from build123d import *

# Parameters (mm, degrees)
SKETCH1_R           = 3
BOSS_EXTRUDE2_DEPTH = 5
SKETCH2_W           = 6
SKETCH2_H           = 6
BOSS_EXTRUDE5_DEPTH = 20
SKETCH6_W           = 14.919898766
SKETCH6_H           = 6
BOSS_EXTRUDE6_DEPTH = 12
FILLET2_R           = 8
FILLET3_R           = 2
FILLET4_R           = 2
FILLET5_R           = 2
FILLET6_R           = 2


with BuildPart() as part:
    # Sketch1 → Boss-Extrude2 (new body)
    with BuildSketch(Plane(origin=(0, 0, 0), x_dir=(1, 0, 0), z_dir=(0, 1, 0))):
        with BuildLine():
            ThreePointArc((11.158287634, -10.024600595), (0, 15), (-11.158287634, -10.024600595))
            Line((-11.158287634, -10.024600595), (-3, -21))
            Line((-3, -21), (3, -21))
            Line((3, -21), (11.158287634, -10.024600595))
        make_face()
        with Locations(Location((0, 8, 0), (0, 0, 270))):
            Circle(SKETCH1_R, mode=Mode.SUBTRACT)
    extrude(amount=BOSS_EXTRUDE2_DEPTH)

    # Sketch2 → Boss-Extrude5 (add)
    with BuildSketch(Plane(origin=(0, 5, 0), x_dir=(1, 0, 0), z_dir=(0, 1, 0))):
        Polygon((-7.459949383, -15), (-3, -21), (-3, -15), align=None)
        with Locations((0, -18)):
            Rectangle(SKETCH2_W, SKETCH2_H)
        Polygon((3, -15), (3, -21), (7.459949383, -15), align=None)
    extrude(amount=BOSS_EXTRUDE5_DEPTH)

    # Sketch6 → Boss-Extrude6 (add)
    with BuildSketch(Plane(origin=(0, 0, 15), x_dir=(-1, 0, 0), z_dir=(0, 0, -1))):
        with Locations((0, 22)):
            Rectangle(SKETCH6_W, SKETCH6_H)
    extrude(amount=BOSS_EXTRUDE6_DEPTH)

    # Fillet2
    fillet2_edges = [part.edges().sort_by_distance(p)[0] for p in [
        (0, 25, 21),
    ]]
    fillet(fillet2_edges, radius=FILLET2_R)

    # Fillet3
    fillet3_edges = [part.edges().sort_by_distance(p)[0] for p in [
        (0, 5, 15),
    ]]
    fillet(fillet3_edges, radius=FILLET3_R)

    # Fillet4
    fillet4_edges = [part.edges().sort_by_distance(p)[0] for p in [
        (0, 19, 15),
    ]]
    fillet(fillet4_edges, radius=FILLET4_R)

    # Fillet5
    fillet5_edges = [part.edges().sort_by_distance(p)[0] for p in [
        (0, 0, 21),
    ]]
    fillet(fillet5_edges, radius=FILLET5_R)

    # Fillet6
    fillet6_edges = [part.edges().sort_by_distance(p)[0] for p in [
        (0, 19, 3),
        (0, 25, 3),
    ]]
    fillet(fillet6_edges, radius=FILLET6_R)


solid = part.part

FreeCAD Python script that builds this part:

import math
import FreeCAD as App
import Part
import Sketcher


def edges_at(feature, points):
    """Names of the edges that pass closest to the given points."""
    edges = feature.Shape.Edges
    near = lambda p: min(range(len(edges)), key=lambda i: edges[i].distToShape(Part.Vertex(*p))[0])
    return sorted({f"Edge{near(p) + 1}" for p in points})


def add_polygon(sketch, points):
    """Adds a closed chain of lines whose ends are joined by coincident constraints."""
    first, n = sketch.GeometryCount, len(points)
    for a, b in zip(points, points[1:] + points[:1]):
        sketch.addGeometry(Part.LineSegment(App.Vector(*a, 0), App.Vector(*b, 0)), False)
    for i in range(n):
        sketch.addConstraint(Sketcher.Constraint("Coincident", first + i, 2, first + (i + 1) % n, 1))

doc = App.newDocument("Part")
body = doc.addObject("PartDesign::Body", "Body")

# Sketch on XZ plane
sketch1 = body.newObject("Sketcher::SketchObject", "Sketch")
sketch1.AttachmentSupport = (doc.getObject("XZ_Plane"), [""])
sketch1.MapMode = "FlatFace"
sketch1.addGeometry([
    Part.ArcOfCircle(Part.Circle(App.Vector(0, 0, 0), App.Vector(0, 0, 1), 15), math.radians(138.06349), math.radians(401.93651)),  # 0
    Part.LineSegment(App.Vector(-11.158288, 10.024601, 0), App.Vector(-3, 21, 0)),  # 1
    Part.LineSegment(App.Vector(-3, 21, 0), App.Vector(3, 21, 0)),  # 2
    Part.LineSegment(App.Vector(3, 21, 0), App.Vector(11.158288, 10.024601, 0)),  # 3
    Part.Circle(App.Vector(0, -8, 0), App.Vector(0, 0, 1), 3),  # 4
], False)
sketch1.addConstraint([
    Sketcher.Constraint("Coincident", 0, 1, 1, 1),
    Sketcher.Constraint("Coincident", 1, 2, 2, 1),
    Sketcher.Constraint("Coincident", 2, 2, 3, 1),
    Sketcher.Constraint("Coincident", 3, 2, 0, 2),
    Sketcher.Constraint("Horizontal", 2),
    Sketcher.Constraint("Coincident", 0, 3, -1, 1),
    Sketcher.Constraint("PointOnObject", 4, 3, -2),
    Sketcher.Constraint("Horizontal", 0, 1, 3, 2),
    Sketcher.Constraint("Equal", 1, 3),
    Sketcher.Constraint("Diameter", 4, 6.0),
    Sketcher.Constraint("Radius", 0, 15.0),
    Sketcher.Constraint("DistanceX", 2, 1, 2, 2, 6.0),
    Sketcher.Constraint("DistanceY", 4, 3, -1, 1, 8.0),
    Sketcher.Constraint("DistanceY", -1, 1, 1, 2, 21.0),
    Sketcher.Constraint("DistanceY", -1, 1, 0, 1, 10.024601),
])
pad1 = body.newObject("PartDesign::Pad", "Pad")
pad1.Profile = sketch1
pad1.Length = 5
pad1.Reversed = True

# Sketch on XZ plane
sketch2 = body.newObject("Sketcher::SketchObject", "Sketch001")
sketch2.AttachmentSupport = (doc.getObject("XZ_Plane"), [""])
sketch2.MapMode = "FlatFace"
sketch2.AttachmentOffset = App.Placement(App.Vector(0, 0, -5), App.Rotation())
add_polygon(sketch2, [(-7.459949, 15), (-3, 21), (3, 21), (7.459949, 15)])  # lines 0-3
sketch2.addConstraint([
    Sketcher.Constraint("Horizontal", 1),
    Sketcher.Constraint("Horizontal", 3),
    Sketcher.Constraint("Equal", 0, 2),
    Sketcher.Constraint("DistanceX", 1, 1, 1, 2, 6.0),
    Sketcher.Constraint("DistanceX", 0, 2, -1, 1, 3.0),
    Sketcher.Constraint("DistanceY", -1, 1, 0, 2, 21.0),
    Sketcher.Constraint("DistanceY", -1, 1, 2, 2, 15.0),
    Sketcher.Constraint("DistanceX", 3, 2, 3, 1, 14.919899),
])
pad2 = body.newObject("PartDesign::Pad", "Pad001")
pad2.Profile = sketch2
pad2.Length = 20
pad2.Reversed = True

# Sketch on XY plane
sketch3 = body.newObject("Sketcher::SketchObject", "Sketch002")
sketch3.AttachmentSupport = (doc.getObject("XY_Plane"), [""])
sketch3.MapMode = "FlatFace"
sketch3.AttachmentOffset = App.Placement(App.Vector(0, 0, 15), App.Rotation())
add_polygon(sketch3, [(7.459949, 25), (7.459949, 19), (-7.459949, 19), (-7.459949, 25)])  # lines 0-3
sketch3.addConstraint([
    Sketcher.Constraint("Vertical", 0),
    Sketcher.Constraint("Horizontal", 1),
    Sketcher.Constraint("Vertical", 2),
    Sketcher.Constraint("Horizontal", 3),
    Sketcher.Constraint("DistanceY", 0, 2, 0, 1, 6.0),
    Sketcher.Constraint("DistanceY", -1, 1, 0, 2, 19.0),
    Sketcher.Constraint("DistanceX", 1, 2, 1, 1, 14.919899),
    Sketcher.Constraint("DistanceX", -1, 1, 0, 2, 7.459949),
])
pad3 = body.newObject("PartDesign::Pad", "Pad002")
pad3.Profile = sketch3
pad3.Length = 12
pad3.Reversed = True
doc.recompute()

fillet = body.newObject("PartDesign::Fillet", "Fillet")
fillet.Base = (pad3, edges_at(pad3, [(0, 25, 21)]))
fillet.Radius = 8
doc.recompute()

fillet2 = body.newObject("PartDesign::Fillet", "Fillet001")
fillet2.Base = (fillet, edges_at(fillet, [(0, 5, 15)]))
fillet2.Radius = 2
doc.recompute()

fillet3 = body.newObject("PartDesign::Fillet", "Fillet002")
fillet3.Base = (fillet2, edges_at(fillet2, [(0, 19, 15)]))
fillet3.Radius = 2
doc.recompute()

fillet4 = body.newObject("PartDesign::Fillet", "Fillet003")
fillet4.Base = (fillet3, edges_at(fillet3, [(0, 0, 21)]))
fillet4.Radius = 2
doc.recompute()

fillet5 = body.newObject("PartDesign::Fillet", "Fillet004")
fillet5.Base = (fillet4, edges_at(fillet4, [(0, 19, 3), (0, 25, 3)]))
fillet5.Radius = 2

doc.recompute()
